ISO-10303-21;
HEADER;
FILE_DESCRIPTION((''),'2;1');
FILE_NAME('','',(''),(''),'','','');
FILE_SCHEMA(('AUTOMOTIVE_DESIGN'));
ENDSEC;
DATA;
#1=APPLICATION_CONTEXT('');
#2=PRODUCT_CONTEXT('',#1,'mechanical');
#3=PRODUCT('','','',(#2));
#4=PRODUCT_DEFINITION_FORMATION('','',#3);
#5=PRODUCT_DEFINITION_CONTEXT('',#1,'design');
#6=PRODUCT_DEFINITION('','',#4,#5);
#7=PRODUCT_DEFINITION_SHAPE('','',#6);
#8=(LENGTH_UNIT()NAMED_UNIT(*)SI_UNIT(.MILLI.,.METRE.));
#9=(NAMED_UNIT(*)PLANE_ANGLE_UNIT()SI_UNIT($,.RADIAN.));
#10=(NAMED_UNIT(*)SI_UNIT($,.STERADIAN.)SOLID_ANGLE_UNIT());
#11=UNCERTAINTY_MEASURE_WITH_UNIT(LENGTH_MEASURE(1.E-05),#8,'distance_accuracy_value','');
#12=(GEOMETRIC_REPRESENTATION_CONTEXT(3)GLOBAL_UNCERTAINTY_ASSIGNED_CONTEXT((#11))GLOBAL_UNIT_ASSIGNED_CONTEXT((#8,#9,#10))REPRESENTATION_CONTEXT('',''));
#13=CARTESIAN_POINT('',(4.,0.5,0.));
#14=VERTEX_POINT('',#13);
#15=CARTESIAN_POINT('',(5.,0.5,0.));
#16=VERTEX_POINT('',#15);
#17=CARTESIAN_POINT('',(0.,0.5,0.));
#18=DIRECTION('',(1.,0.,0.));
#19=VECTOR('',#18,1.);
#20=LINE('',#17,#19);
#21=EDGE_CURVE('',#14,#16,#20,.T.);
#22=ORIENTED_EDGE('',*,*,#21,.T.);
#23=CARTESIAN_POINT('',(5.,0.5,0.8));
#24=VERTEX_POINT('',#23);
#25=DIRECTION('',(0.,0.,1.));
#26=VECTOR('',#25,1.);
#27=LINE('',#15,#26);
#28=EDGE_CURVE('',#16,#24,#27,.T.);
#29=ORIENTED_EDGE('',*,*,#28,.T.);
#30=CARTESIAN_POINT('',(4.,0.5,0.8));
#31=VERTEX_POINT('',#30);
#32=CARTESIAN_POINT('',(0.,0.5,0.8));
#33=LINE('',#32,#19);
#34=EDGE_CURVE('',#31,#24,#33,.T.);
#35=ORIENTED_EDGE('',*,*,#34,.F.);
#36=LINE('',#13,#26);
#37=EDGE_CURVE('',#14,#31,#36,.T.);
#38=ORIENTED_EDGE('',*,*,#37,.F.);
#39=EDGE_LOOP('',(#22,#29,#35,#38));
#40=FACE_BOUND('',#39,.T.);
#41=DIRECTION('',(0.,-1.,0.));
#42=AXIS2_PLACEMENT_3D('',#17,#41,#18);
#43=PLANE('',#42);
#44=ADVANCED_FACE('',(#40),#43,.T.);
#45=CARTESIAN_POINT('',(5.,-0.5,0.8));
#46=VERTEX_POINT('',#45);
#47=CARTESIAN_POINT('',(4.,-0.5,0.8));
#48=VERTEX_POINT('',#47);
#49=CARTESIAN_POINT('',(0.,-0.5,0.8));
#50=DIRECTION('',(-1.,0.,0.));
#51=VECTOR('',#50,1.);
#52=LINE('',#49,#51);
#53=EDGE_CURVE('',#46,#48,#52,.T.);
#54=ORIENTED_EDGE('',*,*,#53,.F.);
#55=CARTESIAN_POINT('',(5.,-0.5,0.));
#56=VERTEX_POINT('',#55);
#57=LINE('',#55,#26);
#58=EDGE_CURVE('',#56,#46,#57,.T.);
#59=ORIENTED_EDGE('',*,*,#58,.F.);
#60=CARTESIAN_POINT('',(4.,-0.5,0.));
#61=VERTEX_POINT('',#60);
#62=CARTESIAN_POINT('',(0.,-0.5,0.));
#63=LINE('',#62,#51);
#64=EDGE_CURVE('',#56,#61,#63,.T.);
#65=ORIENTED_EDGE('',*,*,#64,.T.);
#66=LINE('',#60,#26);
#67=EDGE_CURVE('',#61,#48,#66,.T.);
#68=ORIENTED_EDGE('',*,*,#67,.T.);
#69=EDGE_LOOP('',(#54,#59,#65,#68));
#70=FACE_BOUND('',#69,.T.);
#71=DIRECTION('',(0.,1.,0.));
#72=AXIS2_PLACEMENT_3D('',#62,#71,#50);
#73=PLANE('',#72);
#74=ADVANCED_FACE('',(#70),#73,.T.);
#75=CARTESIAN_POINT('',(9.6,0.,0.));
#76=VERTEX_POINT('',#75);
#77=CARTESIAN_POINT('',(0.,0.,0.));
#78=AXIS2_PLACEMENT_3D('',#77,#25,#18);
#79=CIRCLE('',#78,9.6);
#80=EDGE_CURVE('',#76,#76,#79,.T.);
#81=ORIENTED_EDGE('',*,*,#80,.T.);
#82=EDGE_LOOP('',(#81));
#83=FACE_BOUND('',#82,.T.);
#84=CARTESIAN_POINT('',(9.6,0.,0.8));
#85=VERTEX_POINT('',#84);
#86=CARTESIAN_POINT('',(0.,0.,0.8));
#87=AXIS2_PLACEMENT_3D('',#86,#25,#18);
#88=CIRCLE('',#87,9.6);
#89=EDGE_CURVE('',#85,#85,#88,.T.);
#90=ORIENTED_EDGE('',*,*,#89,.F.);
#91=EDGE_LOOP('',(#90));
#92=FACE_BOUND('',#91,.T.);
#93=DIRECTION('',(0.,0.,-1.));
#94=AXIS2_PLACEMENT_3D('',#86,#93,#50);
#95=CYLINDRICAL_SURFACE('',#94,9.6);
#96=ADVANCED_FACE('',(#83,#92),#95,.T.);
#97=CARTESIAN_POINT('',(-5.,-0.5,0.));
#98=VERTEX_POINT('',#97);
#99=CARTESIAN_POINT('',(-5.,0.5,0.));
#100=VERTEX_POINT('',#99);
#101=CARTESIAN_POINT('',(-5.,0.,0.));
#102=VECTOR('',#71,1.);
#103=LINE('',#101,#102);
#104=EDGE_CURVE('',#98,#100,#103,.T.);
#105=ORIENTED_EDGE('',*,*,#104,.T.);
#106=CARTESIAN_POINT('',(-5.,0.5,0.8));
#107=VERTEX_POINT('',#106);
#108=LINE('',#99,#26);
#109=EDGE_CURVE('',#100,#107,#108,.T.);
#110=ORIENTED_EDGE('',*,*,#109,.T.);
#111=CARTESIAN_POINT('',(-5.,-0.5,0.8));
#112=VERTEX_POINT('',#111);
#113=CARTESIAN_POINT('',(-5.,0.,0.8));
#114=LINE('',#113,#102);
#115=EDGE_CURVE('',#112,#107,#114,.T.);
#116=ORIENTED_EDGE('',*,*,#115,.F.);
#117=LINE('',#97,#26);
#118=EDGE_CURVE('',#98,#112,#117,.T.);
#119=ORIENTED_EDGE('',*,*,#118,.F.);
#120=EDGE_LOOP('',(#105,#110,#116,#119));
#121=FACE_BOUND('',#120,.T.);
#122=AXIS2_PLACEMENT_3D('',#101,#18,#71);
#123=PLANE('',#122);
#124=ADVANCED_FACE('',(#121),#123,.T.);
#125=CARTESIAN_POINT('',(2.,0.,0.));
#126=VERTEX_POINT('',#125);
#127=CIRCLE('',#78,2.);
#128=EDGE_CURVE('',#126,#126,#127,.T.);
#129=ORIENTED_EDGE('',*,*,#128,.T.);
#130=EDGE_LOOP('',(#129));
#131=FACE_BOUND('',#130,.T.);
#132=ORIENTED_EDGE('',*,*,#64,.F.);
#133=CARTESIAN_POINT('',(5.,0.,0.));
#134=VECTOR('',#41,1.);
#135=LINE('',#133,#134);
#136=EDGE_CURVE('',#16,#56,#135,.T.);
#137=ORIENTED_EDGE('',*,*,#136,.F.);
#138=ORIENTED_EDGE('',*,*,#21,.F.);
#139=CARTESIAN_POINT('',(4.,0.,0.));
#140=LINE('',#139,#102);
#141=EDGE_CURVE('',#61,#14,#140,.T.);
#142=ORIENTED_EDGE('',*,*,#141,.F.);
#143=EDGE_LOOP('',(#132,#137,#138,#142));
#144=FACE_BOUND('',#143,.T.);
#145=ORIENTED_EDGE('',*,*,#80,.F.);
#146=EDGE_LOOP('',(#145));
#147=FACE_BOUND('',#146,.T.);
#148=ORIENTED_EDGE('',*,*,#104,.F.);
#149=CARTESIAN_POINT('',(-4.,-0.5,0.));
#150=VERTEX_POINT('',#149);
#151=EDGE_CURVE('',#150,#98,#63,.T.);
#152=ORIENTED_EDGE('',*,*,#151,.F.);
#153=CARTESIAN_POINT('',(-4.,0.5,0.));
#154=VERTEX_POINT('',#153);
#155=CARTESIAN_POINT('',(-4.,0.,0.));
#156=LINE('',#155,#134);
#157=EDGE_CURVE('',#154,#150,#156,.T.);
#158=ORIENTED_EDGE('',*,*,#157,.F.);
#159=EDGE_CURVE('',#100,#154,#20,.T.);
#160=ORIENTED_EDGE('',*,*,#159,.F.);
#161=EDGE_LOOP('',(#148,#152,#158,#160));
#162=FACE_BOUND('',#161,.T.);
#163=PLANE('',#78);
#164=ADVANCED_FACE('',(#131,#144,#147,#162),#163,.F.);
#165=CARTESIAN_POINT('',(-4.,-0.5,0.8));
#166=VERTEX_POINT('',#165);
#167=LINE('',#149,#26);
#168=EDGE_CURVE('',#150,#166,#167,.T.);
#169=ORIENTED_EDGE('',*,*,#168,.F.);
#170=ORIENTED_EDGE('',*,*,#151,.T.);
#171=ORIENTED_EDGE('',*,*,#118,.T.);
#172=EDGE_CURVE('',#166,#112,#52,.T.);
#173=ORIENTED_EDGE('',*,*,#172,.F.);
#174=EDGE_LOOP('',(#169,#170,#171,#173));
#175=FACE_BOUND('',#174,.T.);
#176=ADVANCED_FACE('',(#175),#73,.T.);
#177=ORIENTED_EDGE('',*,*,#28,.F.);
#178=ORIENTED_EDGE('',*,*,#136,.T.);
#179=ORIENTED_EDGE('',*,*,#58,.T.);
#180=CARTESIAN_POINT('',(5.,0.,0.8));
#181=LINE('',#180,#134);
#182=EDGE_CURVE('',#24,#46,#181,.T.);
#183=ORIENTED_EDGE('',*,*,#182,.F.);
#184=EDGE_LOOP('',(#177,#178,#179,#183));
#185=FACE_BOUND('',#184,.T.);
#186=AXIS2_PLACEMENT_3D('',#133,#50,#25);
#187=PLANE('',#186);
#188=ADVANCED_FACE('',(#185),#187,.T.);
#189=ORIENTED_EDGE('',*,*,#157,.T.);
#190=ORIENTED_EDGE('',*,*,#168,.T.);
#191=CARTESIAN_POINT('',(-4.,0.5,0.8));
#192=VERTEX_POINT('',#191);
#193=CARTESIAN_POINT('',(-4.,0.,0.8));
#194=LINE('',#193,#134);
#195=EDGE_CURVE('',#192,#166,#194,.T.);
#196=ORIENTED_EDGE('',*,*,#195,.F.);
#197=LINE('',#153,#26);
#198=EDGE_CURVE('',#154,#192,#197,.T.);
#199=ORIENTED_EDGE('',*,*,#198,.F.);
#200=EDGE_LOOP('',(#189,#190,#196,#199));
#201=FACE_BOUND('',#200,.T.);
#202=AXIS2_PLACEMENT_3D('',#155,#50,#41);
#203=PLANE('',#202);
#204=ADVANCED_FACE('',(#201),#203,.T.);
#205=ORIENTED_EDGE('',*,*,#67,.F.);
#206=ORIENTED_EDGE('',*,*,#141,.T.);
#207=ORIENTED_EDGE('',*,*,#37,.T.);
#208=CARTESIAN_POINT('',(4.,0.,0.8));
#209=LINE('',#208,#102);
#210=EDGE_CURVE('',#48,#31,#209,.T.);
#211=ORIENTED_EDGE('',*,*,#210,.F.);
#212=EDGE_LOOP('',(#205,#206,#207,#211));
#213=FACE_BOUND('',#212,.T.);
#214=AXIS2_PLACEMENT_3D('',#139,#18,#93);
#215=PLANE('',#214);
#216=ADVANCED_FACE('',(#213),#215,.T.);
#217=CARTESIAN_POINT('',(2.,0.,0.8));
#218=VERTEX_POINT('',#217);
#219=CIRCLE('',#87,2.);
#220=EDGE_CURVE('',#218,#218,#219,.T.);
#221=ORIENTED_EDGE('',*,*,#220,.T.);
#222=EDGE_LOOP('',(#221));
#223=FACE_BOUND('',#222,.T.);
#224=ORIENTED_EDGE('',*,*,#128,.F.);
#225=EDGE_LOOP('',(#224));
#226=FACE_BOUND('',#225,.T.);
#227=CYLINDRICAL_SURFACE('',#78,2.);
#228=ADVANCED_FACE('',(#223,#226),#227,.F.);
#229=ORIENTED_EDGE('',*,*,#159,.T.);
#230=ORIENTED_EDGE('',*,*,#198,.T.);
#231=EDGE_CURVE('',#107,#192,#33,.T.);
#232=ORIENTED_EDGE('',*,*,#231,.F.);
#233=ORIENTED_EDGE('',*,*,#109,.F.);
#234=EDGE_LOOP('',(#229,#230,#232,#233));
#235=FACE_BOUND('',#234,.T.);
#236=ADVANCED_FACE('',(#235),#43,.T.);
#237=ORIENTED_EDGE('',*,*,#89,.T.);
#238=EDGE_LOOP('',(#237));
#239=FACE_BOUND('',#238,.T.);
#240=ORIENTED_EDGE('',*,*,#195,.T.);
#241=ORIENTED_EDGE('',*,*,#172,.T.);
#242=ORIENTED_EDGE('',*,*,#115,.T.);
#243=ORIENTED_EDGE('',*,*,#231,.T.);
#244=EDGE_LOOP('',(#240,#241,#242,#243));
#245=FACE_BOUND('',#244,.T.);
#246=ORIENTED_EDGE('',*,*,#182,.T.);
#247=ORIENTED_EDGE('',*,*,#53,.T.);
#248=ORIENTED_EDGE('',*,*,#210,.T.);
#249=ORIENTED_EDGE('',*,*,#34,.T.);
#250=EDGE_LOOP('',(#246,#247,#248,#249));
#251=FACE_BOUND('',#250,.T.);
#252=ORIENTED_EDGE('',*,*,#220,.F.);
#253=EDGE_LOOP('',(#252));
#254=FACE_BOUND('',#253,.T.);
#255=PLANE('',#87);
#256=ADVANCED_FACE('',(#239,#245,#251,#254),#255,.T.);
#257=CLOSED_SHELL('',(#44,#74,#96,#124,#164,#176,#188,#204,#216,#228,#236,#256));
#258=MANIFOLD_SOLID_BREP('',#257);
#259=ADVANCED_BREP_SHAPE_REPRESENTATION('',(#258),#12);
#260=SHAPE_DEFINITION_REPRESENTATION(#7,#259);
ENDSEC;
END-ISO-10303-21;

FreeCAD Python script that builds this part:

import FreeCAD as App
import Part
import Sketcher
Q = App.Units.Quantity

doc = App.newDocument("Part")
body = doc.addObject("PartDesign::Body", "Body")

sketch1 = body.newObject("Sketcher::SketchObject", "Sketch")
sketch1.AttachmentSupport = (doc.getObject("XY_Plane"), [""])
sketch1.MapMode = "FlatFace"
sketch1.addGeometry(Part.Circle(App.Vector(0, 0, 0), App.Vector(0, 0, 1), 10), False)
sketch1.addConstraint(Sketcher.Constraint("Coincident", 0, 3, -1, 1))
sketch1.addConstraint(Sketcher.Constraint("Diameter", 0, Q("19.2 mm")))
pad1 = body.newObject("PartDesign::Pad", "Pad")
pad1.Profile = sketch1
pad1.Length = 0.8

sketch2 = body.newObject("Sketcher::SketchObject", "Sketch001")
sketch2.AttachmentSupport = (doc.getObject("XY_Plane"), [""])
sketch2.MapMode = "FlatFace"
sketch2.AttachmentOffset = App.Placement(App.Vector(0, 0, 0.8), App.Rotation())
sketch2.addGeometry(Part.Circle(App.Vector(0, 0, 0), App.Vector(0, 0, 1), 2), False)
sketch2.addGeometry(Part.LineSegment(App.Vector(-5, 0.5, 0), App.Vector(-5, -0.5, 0)), False)
sketch2.addGeometry(Part.LineSegment(App.Vector(-5, -0.5, 0), App.Vector(-4, -0.5, 0)), False)
sketch2.addGeometry(Part.LineSegment(App.Vector(-4, -0.5, 0), App.Vector(-4, 0.5, 0)), False)
sketch2.addGeometry(Part.LineSegment(App.Vector(-4, 0.5, 0), App.Vector(-5, 0.5, 0)), False)
sketch2.addGeometry(Part.LineSegment(App.Vector(4, 0.5, 0), App.Vector(4, -0.5, 0)), False)
sketch2.addGeometry(Part.LineSegment(App.Vector(4, -0.5, 0), App.Vector(5, -0.5, 0)), False)
sketch2.addGeometry(Part.LineSegment(App.Vector(5, -0.5, 0), App.Vector(5, 0.5, 0)), False)
sketch2.addGeometry(Part.LineSegment(App.Vector(5, 0.5, 0), App.Vector(4, 0.5, 0)), False)
sketch2.addConstraint(Sketcher.Constraint("Coincident", 1, 2, 2, 1))
sketch2.addConstraint(Sketcher.Constraint("Coincident", 2, 2, 3, 1))
sketch2.addConstraint(Sketcher.Constraint("Coincident", 3, 2, 4, 1))
sketch2.addConstraint(Sketcher.Constraint("Coincident", 4, 2, 1, 1))
sketch2.addConstraint(Sketcher.Constraint("Coincident", 5, 2, 6, 1))
sketch2.addConstraint(Sketcher.Constraint("Coincident", 6, 2, 7, 1))
sketch2.addConstraint(Sketcher.Constraint("Coincident", 7, 2, 8, 1))
sketch2.addConstraint(Sketcher.Constraint("Coincident", 8, 2, 5, 1))
sketch2.addConstraint(Sketcher.Constraint("Vertical", 1))
sketch2.addConstraint(Sketcher.Constraint("Horizontal", 2))
sketch2.addConstraint(Sketcher.Constraint("Vertical", 3))
sketch2.addConstraint(Sketcher.Constraint("Horizontal", 4))
sketch2.addConstraint(Sketcher.Constraint("Vertical", 5))
sketch2.addConstraint(Sketcher.Constraint("Horizontal", 6))
sketch2.addConstraint(Sketcher.Constraint("Vertical", 7))
sketch2.addConstraint(Sketcher.Constraint("Horizontal", 8))
sketch2.addConstraint(Sketcher.Constraint("Coincident", 0, 3, -1, 1))
sketch2.addConstraint(Sketcher.Constraint("Symmetric", 3, 2, 5, 2, -1, 1))
sketch2.addConstraint(Sketcher.Constraint("Symmetric", 1, 2, 7, 2, -1, 1))
sketch2.addConstraint(Sketcher.Constraint("Horizontal", 2, 2, 5, 2))
sketch2.addConstraint(Sketcher.Constraint("Equal", 8, 1))
sketch2.addConstraint(Sketcher.Constraint("Diameter", 0, Q("4 mm")))
sketch2.addConstraint(Sketcher.Constraint("DistanceX", 2, 1, 2, 2, Q("1 mm")))
sketch2.addConstraint(Sketcher.Constraint("DistanceX", 1, 2, -1, 1, Q("5 mm")))
pocket1 = body.newObject("PartDesign::Pocket", "Pocket")
pocket1.Profile = sketch2
pocket1.Type = "ThroughAll"
pocket1.Midplane = True

doc.recompute()
